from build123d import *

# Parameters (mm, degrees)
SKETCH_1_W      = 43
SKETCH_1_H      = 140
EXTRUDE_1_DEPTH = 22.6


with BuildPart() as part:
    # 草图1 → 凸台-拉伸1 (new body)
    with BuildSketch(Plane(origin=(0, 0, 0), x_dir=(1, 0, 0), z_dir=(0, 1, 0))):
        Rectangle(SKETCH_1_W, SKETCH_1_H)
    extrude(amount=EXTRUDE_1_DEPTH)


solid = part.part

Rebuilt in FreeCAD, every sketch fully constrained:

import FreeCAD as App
import Part
import Sketcher
from FreeCAD import Vector
Q = App.Units.Quantity

doc = App.newDocument("Part")
params = doc.addObject("Spreadsheet::Sheet", "Params")
for row, (alias, value) in enumerate([
    ("sketch1_width", "43 mm"),
    ("sketch1_height", "140 mm"),
    ("pad1_length", "22.6 mm"),
], start=1):
    params.set(f"A{row}", alias)
    params.set(f"B{row}", "=" + value)
    params.setAlias(f"B{row}", alias)

body = doc.addObject("PartDesign::Body", "Body")

sketch1 = body.newObject("Sketcher::SketchObject", "Sketch")
sketch1.AttachmentSupport = (doc.getObject("XZ_Plane"), [""])
sketch1.MapMode = "FlatFace"
sketch1.addGeometry([
    Part.LineSegment(Vector(-22, -70, 0), Vector(-22, 70, 0)),
    Part.LineSegment(Vector(-22, 70, 0), Vector(22, 70, 0)),
    Part.LineSegment(Vector(22, 70, 0), Vector(22, -70, 0)),
    Part.LineSegment(Vector(22, -70, 0), Vector(-22, -70, 0)),
], False)
sketch1.addConstraint([
    Sketcher.Constraint("Coincident", 0, 2, 1, 1),
    Sketcher.Constraint("Coincident", 1, 2, 2, 1),
    Sketcher.Constraint("Coincident", 2, 2, 3, 1),
    Sketcher.Constraint("Coincident", 3, 2, 0, 1),
    Sketcher.Constraint("Vertical", 0),
    Sketcher.Constraint("Horizontal", 1),
    Sketcher.Constraint("Vertical", 2),
    Sketcher.Constraint("Horizontal", 3),
    Sketcher.Constraint("Symmetric", 0, 2, 2, 2, -1, 1),
    Sketcher.Constraint("DistanceX", 1, 1, 1, 2, Q("43 mm")),
    Sketcher.Constraint("DistanceY", 0, 1, 0, 2, Q("140 mm")),
])
sketch1.setExpression("Constraints[9]", "Params.sketch1_width")
sketch1.setExpression("Constraints[10]", "Params.sketch1_height")
pad1 = body.newObject("PartDesign::Pad", "Pad")
pad1.Profile = sketch1
pad1.setExpression("Length", "Params.pad1_length")
pad1.Reversed = True

doc.recompute()
